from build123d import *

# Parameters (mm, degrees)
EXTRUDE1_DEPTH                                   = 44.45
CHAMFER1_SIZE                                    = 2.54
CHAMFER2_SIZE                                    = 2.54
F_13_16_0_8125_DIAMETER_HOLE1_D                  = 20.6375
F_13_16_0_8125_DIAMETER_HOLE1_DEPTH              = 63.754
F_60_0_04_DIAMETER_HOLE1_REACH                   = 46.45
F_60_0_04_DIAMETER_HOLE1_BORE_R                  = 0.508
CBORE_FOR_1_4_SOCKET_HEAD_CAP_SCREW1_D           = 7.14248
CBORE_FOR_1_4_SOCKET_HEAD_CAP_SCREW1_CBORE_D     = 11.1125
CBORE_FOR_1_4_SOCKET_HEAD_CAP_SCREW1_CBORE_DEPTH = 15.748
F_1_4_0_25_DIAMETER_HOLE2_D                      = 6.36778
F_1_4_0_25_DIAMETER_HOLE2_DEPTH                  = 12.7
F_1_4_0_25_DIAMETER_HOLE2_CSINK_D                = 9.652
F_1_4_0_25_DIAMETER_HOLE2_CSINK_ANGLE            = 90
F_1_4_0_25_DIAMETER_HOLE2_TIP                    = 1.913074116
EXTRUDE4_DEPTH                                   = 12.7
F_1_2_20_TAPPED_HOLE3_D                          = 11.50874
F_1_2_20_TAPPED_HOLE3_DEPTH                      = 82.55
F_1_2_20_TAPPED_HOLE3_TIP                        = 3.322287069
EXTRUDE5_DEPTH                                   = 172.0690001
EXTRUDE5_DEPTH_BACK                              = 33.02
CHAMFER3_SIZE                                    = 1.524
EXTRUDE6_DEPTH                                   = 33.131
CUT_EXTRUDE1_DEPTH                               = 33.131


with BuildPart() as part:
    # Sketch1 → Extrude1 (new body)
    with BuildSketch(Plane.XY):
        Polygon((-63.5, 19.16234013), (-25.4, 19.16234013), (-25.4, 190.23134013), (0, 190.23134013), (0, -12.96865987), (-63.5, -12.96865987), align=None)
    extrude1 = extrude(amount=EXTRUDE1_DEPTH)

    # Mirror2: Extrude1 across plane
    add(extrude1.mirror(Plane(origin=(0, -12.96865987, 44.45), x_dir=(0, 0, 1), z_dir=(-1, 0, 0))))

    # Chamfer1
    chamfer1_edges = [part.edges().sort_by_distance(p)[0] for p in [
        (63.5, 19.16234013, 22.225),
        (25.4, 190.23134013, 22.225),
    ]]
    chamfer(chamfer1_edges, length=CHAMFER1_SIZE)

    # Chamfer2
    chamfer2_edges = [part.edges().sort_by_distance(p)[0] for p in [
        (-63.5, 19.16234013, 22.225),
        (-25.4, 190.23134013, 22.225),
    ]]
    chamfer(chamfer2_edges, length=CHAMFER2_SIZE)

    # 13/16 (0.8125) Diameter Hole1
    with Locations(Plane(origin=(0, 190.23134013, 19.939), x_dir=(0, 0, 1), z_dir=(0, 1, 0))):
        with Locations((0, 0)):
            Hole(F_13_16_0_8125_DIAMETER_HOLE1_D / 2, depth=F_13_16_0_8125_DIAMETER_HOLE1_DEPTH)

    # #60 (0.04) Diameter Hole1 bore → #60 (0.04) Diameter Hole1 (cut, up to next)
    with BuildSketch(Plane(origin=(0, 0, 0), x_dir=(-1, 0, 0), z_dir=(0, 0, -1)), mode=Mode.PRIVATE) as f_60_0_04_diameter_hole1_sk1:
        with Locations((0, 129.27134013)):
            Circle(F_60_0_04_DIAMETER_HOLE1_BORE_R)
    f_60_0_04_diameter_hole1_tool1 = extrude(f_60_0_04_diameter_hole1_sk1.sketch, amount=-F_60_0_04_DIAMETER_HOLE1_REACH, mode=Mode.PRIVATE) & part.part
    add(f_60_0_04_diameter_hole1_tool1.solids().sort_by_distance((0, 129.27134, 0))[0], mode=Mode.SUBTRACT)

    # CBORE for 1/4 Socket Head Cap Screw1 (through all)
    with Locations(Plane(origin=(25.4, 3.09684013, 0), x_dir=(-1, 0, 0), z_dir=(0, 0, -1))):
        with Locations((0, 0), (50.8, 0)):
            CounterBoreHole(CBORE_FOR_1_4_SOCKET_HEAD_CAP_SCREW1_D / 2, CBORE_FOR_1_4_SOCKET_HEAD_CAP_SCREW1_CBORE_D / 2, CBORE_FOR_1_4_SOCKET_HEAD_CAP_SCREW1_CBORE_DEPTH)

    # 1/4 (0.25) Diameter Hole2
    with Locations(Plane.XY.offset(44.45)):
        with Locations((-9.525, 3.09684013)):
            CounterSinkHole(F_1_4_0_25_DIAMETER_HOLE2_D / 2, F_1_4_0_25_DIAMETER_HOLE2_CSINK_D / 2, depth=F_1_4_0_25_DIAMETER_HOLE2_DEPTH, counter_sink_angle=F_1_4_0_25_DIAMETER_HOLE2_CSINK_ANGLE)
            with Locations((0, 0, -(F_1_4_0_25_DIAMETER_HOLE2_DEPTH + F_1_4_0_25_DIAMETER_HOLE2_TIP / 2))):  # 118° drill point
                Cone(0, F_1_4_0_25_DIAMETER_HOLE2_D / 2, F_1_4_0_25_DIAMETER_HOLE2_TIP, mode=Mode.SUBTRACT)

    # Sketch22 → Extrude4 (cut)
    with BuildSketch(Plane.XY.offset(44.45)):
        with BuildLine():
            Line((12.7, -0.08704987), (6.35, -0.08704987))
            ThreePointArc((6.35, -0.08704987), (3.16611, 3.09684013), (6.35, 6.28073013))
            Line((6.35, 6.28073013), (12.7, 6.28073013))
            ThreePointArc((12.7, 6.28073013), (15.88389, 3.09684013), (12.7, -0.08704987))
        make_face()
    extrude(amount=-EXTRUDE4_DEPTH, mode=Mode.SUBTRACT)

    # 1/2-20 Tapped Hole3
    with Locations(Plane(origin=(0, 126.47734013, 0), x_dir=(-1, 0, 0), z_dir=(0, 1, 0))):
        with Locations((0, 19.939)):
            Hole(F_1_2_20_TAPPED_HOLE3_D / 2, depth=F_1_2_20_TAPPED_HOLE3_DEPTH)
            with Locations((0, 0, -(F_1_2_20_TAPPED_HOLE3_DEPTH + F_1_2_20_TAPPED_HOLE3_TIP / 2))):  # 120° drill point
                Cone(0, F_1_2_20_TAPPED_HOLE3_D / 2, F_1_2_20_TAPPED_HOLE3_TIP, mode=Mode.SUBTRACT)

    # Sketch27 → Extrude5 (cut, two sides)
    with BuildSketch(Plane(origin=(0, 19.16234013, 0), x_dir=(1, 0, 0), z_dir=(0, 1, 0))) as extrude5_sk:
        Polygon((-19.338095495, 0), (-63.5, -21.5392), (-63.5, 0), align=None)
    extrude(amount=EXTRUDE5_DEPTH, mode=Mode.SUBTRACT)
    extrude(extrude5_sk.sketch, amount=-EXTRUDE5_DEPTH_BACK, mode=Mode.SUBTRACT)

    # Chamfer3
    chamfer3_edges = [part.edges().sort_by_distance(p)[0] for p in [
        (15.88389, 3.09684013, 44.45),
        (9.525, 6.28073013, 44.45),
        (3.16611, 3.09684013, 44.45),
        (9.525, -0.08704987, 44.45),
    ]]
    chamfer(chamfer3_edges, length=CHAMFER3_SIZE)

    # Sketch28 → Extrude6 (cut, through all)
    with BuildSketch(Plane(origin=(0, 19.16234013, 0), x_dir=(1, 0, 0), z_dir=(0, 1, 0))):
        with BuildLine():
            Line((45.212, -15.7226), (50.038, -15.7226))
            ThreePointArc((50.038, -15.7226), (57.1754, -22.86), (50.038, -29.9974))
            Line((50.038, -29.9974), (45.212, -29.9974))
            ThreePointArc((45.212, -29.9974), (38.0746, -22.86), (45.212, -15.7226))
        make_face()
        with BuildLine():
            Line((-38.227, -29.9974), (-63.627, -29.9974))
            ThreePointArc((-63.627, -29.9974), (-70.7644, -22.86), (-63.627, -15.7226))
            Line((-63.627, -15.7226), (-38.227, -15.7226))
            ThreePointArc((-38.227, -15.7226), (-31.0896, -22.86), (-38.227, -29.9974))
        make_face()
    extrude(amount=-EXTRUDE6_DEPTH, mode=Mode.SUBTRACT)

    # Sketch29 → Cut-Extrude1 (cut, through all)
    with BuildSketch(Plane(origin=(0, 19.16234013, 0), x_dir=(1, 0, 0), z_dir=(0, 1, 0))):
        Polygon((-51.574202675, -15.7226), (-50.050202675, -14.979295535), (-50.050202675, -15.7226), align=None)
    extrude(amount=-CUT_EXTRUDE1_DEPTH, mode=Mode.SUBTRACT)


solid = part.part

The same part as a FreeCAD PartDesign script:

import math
import FreeCAD as App
import Part
import Sketcher
from FreeCAD import Vector
Q = App.Units.Quantity


def edges_at(feature, points):
    """Names of the edges that pass closest to the given points."""
    edges = feature.Shape.Edges
    near = lambda p: min(range(len(edges)), key=lambda i: edges[i].distToShape(Part.Vertex(*p))[0])
    return sorted({f"Edge{near(p) + 1}" for p in points})

doc = App.newDocument("Part")
params = doc.addObject("Spreadsheet::Sheet", "Params")
for row, (alias, value) in enumerate([
    ("sketch1_width", "1 in"),
    ("sketch1_height", "8 in"),
    ("sketch1_width2", "1.5 in"),
    ("sketch1_height2", "1.265 in"),
    ("pad1_length", "1.75 in"),
    ("chamfer_size", "0.1 in"),
    ("chamfer2_size", "0.1 in"),
    ("sketch2_diameter", "0.8125 in"),
    ("hole_diameter", "0.8125 in"),
    ("hole_depth", "2.51 in"),
    ("sketch3_diameter", "0.04 in"),
    ("hole2_diameter", "0.2812 in"),
    ("hole2_cbore_diameter", "0.4375 in"),
    ("hole2_cbore_depth", "0.62 in"),
    ("hole3_diameter", "0.2507 in"),
    ("hole3_depth", "0.5 in"),
    ("hole3_csink_diameter", "0.38 in"),
    ("sketch6_width", "0.25 in"),
    ("pocket2_length", "0.5 in"),
    ("hole4_diameter", "0.4531 in"),
    ("hole4_depth", "3.25 in"),
    ("sketch8_height", "0.848 in"),
    ("chamfer3_size", "0.06 in"),
    ("sketch9_width", "1 in"),
    ("sketch9_radius", "0.281 in"),
    ("sketch9_width2", "0.19 in"),
    ("sketch10_width", "0.06 in"),
], start=1):
    params.set(f"A{row}", alias)
    params.set(f"B{row}", "=" + value)
    params.setAlias(f"B{row}", alias)

body = doc.addObject("PartDesign::Body", "Body")

# Sketch on XY plane
sketch1 = body.newObject("Sketcher::SketchObject", "Sketch")
sketch1.AttachmentSupport = (doc.getObject("XY_Plane"), [""])
sketch1.MapMode = "FlatFace"
sketch1.addGeometry(Part.LineSegment(Vector(-25, 19, 0), Vector(-64, 19, 0)), False)
sketch1.addGeometry(Part.LineSegment(Vector(-64, 19, 0), Vector(-64, -13, 0)), False)
sketch1.addGeometry(Part.LineSegment(Vector(-64, -13, 0), Vector(0, -13, 0)), False)
sketch1.addGeometry(Part.LineSegment(Vector(0, -13, 0), Vector(0, 190, 0)), False)
sketch1.addGeometry(Part.LineSegment(Vector(0, 190, 0), Vector(-25, 190, 0)), False)
sketch1.addGeometry(Part.LineSegment(Vector(-25, 190, 0), Vector(-25, 19, 0)), False)
sketch1.addConstraint(Sketcher.Constraint("Coincident", 0, 2, 1, 1))
sketch1.addConstraint(Sketcher.Constraint("Coincident", 1, 2, 2, 1))
sketch1.addConstraint(Sketcher.Constraint("Coincident", 2, 2, 3, 1))
sketch1.addConstraint(Sketcher.Constraint("Coincident", 3, 2, 4, 1))
sketch1.addConstraint(Sketcher.Constraint("Coincident", 4, 2, 5, 1))
sketch1.addConstraint(Sketcher.Constraint("Coincident", 5, 2, 0, 1))
sketch1.addConstraint(Sketcher.Constraint("Horizontal", 0))
sketch1.addConstraint(Sketcher.Constraint("Vertical", 1))
sketch1.addConstraint(Sketcher.Constraint("Horizontal", 2))
sketch1.addConstraint(Sketcher.Constraint("Vertical", 3))
sketch1.addConstraint(Sketcher.Constraint("Horizontal", 4))
sketch1.addConstraint(Sketcher.Constraint("Vertical", 5))
sketch1.addConstraint(Sketcher.Constraint("PointOnObject", 2, 2, -2))
sketch1.addConstraint(Sketcher.Constraint("DistanceX", 4, 2, 4, 1, Q("1 in")))
sketch1.addConstraint(Sketcher.Constraint("DistanceY", 3, 1, 3, 2, Q("8 in")))
sketch1.addConstraint(Sketcher.Constraint("DistanceX", 0, 2, 0, 1, Q("1.5 in")))
sketch1.addConstraint(Sketcher.Constraint("DistanceY", 1, 2, 1, 1, Q("1.265 in")))
sketch1.addConstraint(Sketcher.Constraint("DistanceY", -1, 1, 0, 2, Q("19.16234 mm")))
sketch1.setExpression("Constraints[13]", "Params.sketch1_width")
sketch1.setExpression("Constraints[14]", "Params.sketch1_height")
sketch1.setExpression("Constraints[15]", "Params.sketch1_width2")
sketch1.setExpression("Constraints[16]", "Params.sketch1_height2")
pad1 = body.newObject("PartDesign::Pad", "Pad")
pad1.Profile = sketch1
pad1.setExpression("Length", "Params.pad1_length")
doc.recompute()

mirrored = body.newObject("PartDesign::Mirrored", "Mirrored")
mirrored.Originals = [pad1]
mirrored.MirrorPlane = (doc.getObject("YZ_Plane"), [""])
body.Tip = mirrored
doc.recompute()

chamfer = body.newObject("PartDesign::Chamfer", "Chamfer")
chamfer.Base = (mirrored, edges_at(mirrored, [(63.5, 19.162, 22.225), (25.4, 190.231, 22.225)]))
chamfer.setExpression("Size", "Params.chamfer_size")
doc.recompute()

chamfer2 = body.newObject("PartDesign::Chamfer", "Chamfer001")
chamfer2.Base = (chamfer, edges_at(chamfer, [(-63.5, 19.162, 22.225), (-25.4, 190.231, 22.225)]))
chamfer2.setExpression("Size", "Params.chamfer2_size")

# Sketch on XZ plane
sketch2 = body.newObject("Sketcher::SketchObject", "Sketch001")
sketch2.AttachmentSupport = (doc.getObject("XZ_Plane"), [""])
sketch2.MapMode = "FlatFace"
sketch2.AttachmentOffset = App.Placement(Vector(0, 0, -190.23134), App.Rotation())
sketch2.addGeometry(Part.Circle(Vector(0, 20, 0), Vector(0, 0, 1), 10), False)
sketch2.addConstraint(Sketcher.Constraint("PointOnObject", 0, 3, -2))
sketch2.addConstraint(Sketcher.Constraint("Diameter", 0, Q("0.8125 in")))
sketch2.addConstraint(Sketcher.Constraint("DistanceY", -1, 1, 0, 3, Q("0.785 in")))
sketch2.setExpression("Constraints[1]", "Params.sketch2_diameter")
doc.recompute()
hole = body.newObject("PartDesign::Hole", "Hole")
hole.Profile = sketch2
hole.ThreadType = "None"
hole.setExpression("Diameter", "Params.hole_diameter")
hole.DepthType = "Dimension"
hole.setExpression("Depth", "Params.hole_depth")
hole.DrillPoint = "Flat"
hole.Reversed = True

# Sketch on XY plane
sketch3 = body.newObject("Sketcher::SketchObject", "Sketch002")
sketch3.AttachmentSupport = (doc.getObject("XY_Plane"), [""])
sketch3.MapMode = "FlatFace"
sketch3.addGeometry(Part.Circle(Vector(0, 129.3, 0), Vector(0, 0, 1), 0.5), False)
sketch3.addConstraint(Sketcher.Constraint("PointOnObject", 0, 3, -2))
sketch3.addConstraint(Sketcher.Constraint("Diameter", 0, Q("0.04 in")))
sketch3.addConstraint(Sketcher.Constraint("DistanceY", -1, 1, 0, 3, Q("129.27134 mm")))
sketch3.setExpression("Constraints[1]", "Params.sketch3_diameter")
pocket1 = body.newObject("PartDesign::Pocket", "Pocket")
pocket1.Profile = sketch3
pocket1.Type = "UpToFirst"
pocket1.Reversed = True

# Sketch on XY plane
sketch4 = body.newObject("Sketcher::SketchObject", "Sketch003")
sketch4.AttachmentSupport = (doc.getObject("XY_Plane"), [""])
sketch4.MapMode = "FlatFace"
sketch4.addGeometry(Part.Circle(Vector(25.4, 3.1, 0), Vector(0, 0, 1), 3.6), False)
sketch4.addGeometry(Part.Circle(Vector(-25.4, 3.1, 0), Vector(0, 0, 1), 3.6), False)
sketch4.addConstraint(Sketcher.Constraint("Equal", 0, 1))
sketch4.addConstraint(Sketcher.Constraint("Symmetric", 0, 3, 1, 3, -2))
sketch4.addConstraint(Sketcher.Constraint("DistanceX", -1, 1, 0, 3, Q("1 in")))
sketch4.addConstraint(Sketcher.Constraint("Diameter", 0, Q("0.2812 in")))
sketch4.addConstraint(Sketcher.Constraint("DistanceY", -1, 1, 0, 3, Q("3.09684 mm")))
doc.recompute()
hole2 = body.newObject("PartDesign::Hole", "Hole001")
hole2.Profile = sketch4
hole2.ThreadType = "None"
hole2.setExpression("Diameter", "Params.hole2_diameter")
hole2.DepthType = "ThroughAll"
hole2.HoleCutType = "Counterbore"
hole2.setExpression("HoleCutDiameter", "Params.hole2_cbore_diameter")
hole2.setExpression("HoleCutDepth", "Params.hole2_cbore_depth")
hole2.Reversed = True

# Sketch on XY plane
sketch5 = body.newObject("Sketcher::SketchObject", "Sketch004")
sketch5.AttachmentSupport = (doc.getObject("XY_Plane"), [""])
sketch5.MapMode = "FlatFace"
sketch5.AttachmentOffset = App.Placement(Vector(0, 0, 1.75 * 25.4), App.Rotation())
sketch5.addGeometry(Part.Circle(Vector(-9.5, 3.1, 0), Vector(0, 0, 1), 3.2), False)
sketch5.addConstraint(Sketcher.Constraint("Diameter", 0, Q("0.2507 in")))
sketch5.addConstraint(Sketcher.Constraint("DistanceX", 0, 3, -1, 1, Q("0.375 in")))
sketch5.addConstraint(Sketcher.Constraint("DistanceY", -1, 1, 0, 3, Q("3.09684 mm")))
doc.recompute()
hole3 = body.newObject("PartDesign::Hole", "Hole002")
hole3.Profile = sketch5
hole3.ThreadType = "None"
hole3.setExpression("Diameter", "Params.hole3_diameter")
hole3.DepthType = "Dimension"
hole3.setExpression("Depth", "Params.hole3_depth")
hole3.DrillPoint = "Angled"
hole3.DrillPointAngle = 118
hole3.HoleCutType = "Countersink"
hole3.setExpression("HoleCutDiameter", "Params.hole3_csink_diameter")
hole3.HoleCutCountersinkAngle = 90

# Sketch on XY plane
sketch6 = body.newObject("Sketcher::SketchObject", "Sketch005")
sketch6.AttachmentSupport = (doc.getObject("XY_Plane"), [""])
sketch6.MapMode = "FlatFace"
sketch6.AttachmentOffset = App.Placement(Vector(0, 0, 1.75 * 25.4), App.Rotation())
sketch6.addGeometry(Part.LineSegment(Vector(6.3, -0.1, 0), Vector(12.7, -0.1, 0)), False)
sketch6.addGeometry(Part.ArcOfCircle(Part.Circle(Vector(12.7, 3.1, 0), Vector(0, 0, 1), 3.2), math.radians(-90), math.radians(90)), False)
sketch6.addGeometry(Part.LineSegment(Vector(12.7, 6.3, 0), Vector(6.3, 6.3, 0)), False)
sketch6.addGeometry(Part.ArcOfCircle(Part.Circle(Vector(6.3, 3.1, 0), Vector(0, 0, 1), 3.2), math.radians(90), math.radians(270)), False)
sketch6.addConstraint(Sketcher.Constraint("Tangent", 0, 2, 1, 1))
sketch6.addConstraint(Sketcher.Constraint("Tangent", 1, 2, 2, 1))
sketch6.addConstraint(Sketcher.Constraint("Tangent", 2, 2, 3, 1))
sketch6.addConstraint(Sketcher.Constraint("Tangent", 3, 2, 0, 1))
sketch6.addConstraint(Sketcher.Constraint("Horizontal", 0))
sketch6.addConstraint(Sketcher.Constraint("Horizontal", 2))
sketch6.addConstraint(Sketcher.Constraint("DistanceX", 0, 1, 0, 2, Q("0.25 in")))
sketch6.addConstraint(Sketcher.Constraint("DistanceX", -1, 1, 1, 3, Q("0.5 in")))
sketch6.addConstraint(Sketcher.Constraint("Radius", 1, Q("3.18389 mm")))
sketch6.addConstraint(Sketcher.Constraint("DistanceY", -1, 1, 1, 3, Q("3.09684 mm")))
sketch6.setExpression("Constraints[6]", "Params.sketch6_width")
pocket2 = body.newObject("PartDesign::Pocket", "Pocket001")
pocket2.Profile = sketch6
pocket2.setExpression("Length", "Params.pocket2_length")

# Sketch on XZ plane
sketch7 = body.newObject("Sketcher::SketchObject", "Sketch006")
sketch7.AttachmentSupport = (doc.getObject("XZ_Plane"), [""])
sketch7.MapMode = "FlatFace"
sketch7.AttachmentOffset = App.Placement(Vector(0, 0, -126.47734), App.Rotation())
sketch7.addGeometry(Part.Circle(Vector(0, 20, 0), Vector(0, 0, 1), 6), False)
sketch7.addConstraint(Sketcher.Constraint("PointOnObject", 0, 3, -2))
sketch7.addConstraint(Sketcher.Constraint("Diameter", 0, Q("0.4531 in")))
sketch7.addConstraint(Sketcher.Constraint("DistanceY", -1, 1, 0, 3, Q("0.785 in")))
doc.recompute()
hole4 = body.newObject("PartDesign::Hole", "Hole003")
hole4.Profile = sketch7
hole4.ThreadType = "None"
hole4.setExpression("Diameter", "Params.hole4_diameter")
hole4.DepthType = "Dimension"
hole4.setExpression("Depth", "Params.hole4_depth")
hole4.DrillPoint = "Angled"
hole4.DrillPointAngle = 120
hole4.Reversed = True

# Sketch on XZ plane
sketch8 = body.newObject("Sketcher::SketchObject", "Sketch007")
sketch8.AttachmentSupport = (doc.getObject("XZ_Plane"), [""])
sketch8.MapMode = "FlatFace"
sketch8.AttachmentOffset = App.Placement(Vector(0, 0, -19.16234), App.Rotation())
sketch8.addGeometry(Part.LineSegment(Vector(-64, 22, 0), Vector(-19, 0, 0)), False)
sketch8.addGeometry(Part.LineSegment(Vector(-19, 0, 0), Vector(-64, 0, 0)), False)
sketch8.addGeometry(Part.LineSegment(Vector(-64, 0, 0), Vector(-64, 22, 0)), False)
sketch8.addConstraint(Sketcher.Constraint("Coincident", 0, 2, 1, 1))
sketch8.addConstraint(Sketcher.Constraint("Coincident", 1, 2, 2, 1))
sketch8.addConstraint(Sketcher.Constraint("Coincident", 2, 2, 0, 1))
sketch8.addConstraint(Sketcher.Constraint("Horizontal", 1))
sketch8.addConstraint(Sketcher.Constraint("Vertical", 2))
sketch8.addConstraint(Sketcher.Constraint("PointOnObject", 0, 2, -1))
sketch8.addConstraint(Sketcher.Constraint("Angle", 0, Q("-26 deg")))
sketch8.addConstraint(Sketcher.Constraint("DistanceX", 1, 2, -1, 1, Q("2.5 in")))
sketch8.addConstraint(Sketcher.Constraint("DistanceY", 2, 1, 2, 2, Q("0.848 in")))
sketch8.setExpression("Constraints[8]", "Params.sketch8_height")
pocket3 = body.newObject("PartDesign::Pocket", "Pocket002")
pocket3.Profile = sketch8
pocket3.Type = "ThroughAll"
pocket3.Midplane = True
doc.recompute()

chamfer3 = body.newObject("PartDesign::Chamfer", "Chamfer002")
chamfer3.Base = (pocket3, edges_at(pocket3, [
    (15.884, 3.097, 44.45),
    (9.525, 6.281, 44.45),
    (3.166, 3.097, 44.45),
    (9.525, -0.087, 44.45),
]))
chamfer3.setExpression("Size", "Params.chamfer3_size")

# Sketch on XZ plane
sketch9 = body.newObject("Sketcher::SketchObject", "Sketch008")
sketch9.AttachmentSupport = (doc.getObject("XZ_Plane"), [""])
sketch9.MapMode = "FlatFace"
sketch9.AttachmentOffset = App.Placement(Vector(0, 0, -19.16234), App.Rotation())
sketch9.addGeometry(Part.LineSegment(Vector(50, 15.7, 0), Vector(45.2, 15.7, 0)), False)
sketch9.addGeometry(Part.ArcOfCircle(Part.Circle(Vector(45.2, 22.9, 0), Vector(0, 0, 1), 7.1), math.radians(90), math.radians(270)), False)
sketch9.addGeometry(Part.LineSegment(Vector(45.2, 30, 0), Vector(50, 30, 0)), False)
sketch9.addGeometry(Part.ArcOfCircle(Part.Circle(Vector(50, 22.9, 0), Vector(0, 0, 1), 7.1), math.radians(-90), math.radians(90)), False)
sketch9.addGeometry(Part.LineSegment(Vector(-63.6, 30, 0), Vector(-38.2, 30, 0)), False)
sketch9.addGeometry(Part.ArcOfCircle(Part.Circle(Vector(-38.2, 22.9, 0), Vector(0, 0, 1), 7.1), math.radians(-90), math.radians(90)), False)
sketch9.addGeometry(Part.LineSegment(Vector(-38.2, 15.7, 0), Vector(-63.6, 15.7, 0)), False)
sketch9.addGeometry(Part.ArcOfCircle(Part.Circle(Vector(-63.6, 22.9, 0), Vector(0, 0, 1), 7.1), math.radians(90), math.radians(270)), False)
sketch9.addConstraint(Sketcher.Constraint("Tangent", 0, 2, 1, 2))
sketch9.addConstraint(Sketcher.Constraint("Tangent", 1, 1, 2, 1))
sketch9.addConstraint(Sketcher.Constraint("Tangent", 2, 2, 3, 2))
sketch9.addConstraint(Sketcher.Constraint("Tangent", 3, 1, 0, 1))
sketch9.addConstraint(Sketcher.Constraint("Tangent", 4, 2, 5, 2))
sketch9.addConstraint(Sketcher.Constraint("Tangent", 5, 1, 6, 1))
sketch9.addConstraint(Sketcher.Constraint("Tangent", 6, 2, 7, 2))
sketch9.addConstraint(Sketcher.Constraint("Tangent", 7, 1, 4, 1))
sketch9.addConstraint(Sketcher.Constraint("Horizontal", 0))
sketch9.addConstraint(Sketcher.Constraint("Horizontal", 2))
sketch9.addConstraint(Sketcher.Constraint("Horizontal", 4))
sketch9.addConstraint(Sketcher.Constraint("Horizontal", 6))
sketch9.addConstraint(Sketcher.Constraint("Equal", 3, 5))
sketch9.addConstraint(Sketcher.Constraint("Horizontal", 3, 3, 5, 3))
sketch9.addConstraint(Sketcher.Constraint("DistanceX", 4, 1, 4, 2, Q("1 in")))
sketch9.addConstraint(Sketcher.Constraint("Radius", 1, Q("0.281 in")))
sketch9.addConstraint(Sketcher.Constraint("DistanceX", 0, 2, 0, 1, Q("0.19 in")))
sketch9.addConstraint(Sketcher.Constraint("DistanceY", -1, 1, 1, 3, Q("0.9 in")))
sketch9.addConstraint(Sketcher.Constraint("DistanceX", -1, 1, 1, 3, Q("1.78 in")))
sketch9.addConstraint(Sketcher.Constraint("DistanceX", 5, 3, -1, 1, Q("1.505 in")))
sketch9.setExpression("Constraints[14]", "Params.sketch9_width")
sketch9.setExpression("Constraints[15]", "Params.sketch9_radius")
sketch9.setExpression("Constraints[16]", "Params.sketch9_width2")
pocket4 = body.newObject("PartDesign::Pocket", "Pocket003")
pocket4.Profile = sketch9
pocket4.Type = "ThroughAll"
pocket4.Reversed = True

# Sketch on XZ plane
sketch10 = body.newObject("Sketcher::SketchObject", "Sketch009")
sketch10.AttachmentSupport = (doc.getObject("XZ_Plane"), [""])
sketch10.MapMode = "FlatFace"
sketch10.AttachmentOffset = App.Placement(Vector(0, 0, -19.16234), App.Rotation())
sketch10.addGeometry(Part.LineSegment(Vector(-50.1, 15, 0), Vector(-51.6, 15.7, 0)), False)
sketch10.addGeometry(Part.LineSegment(Vector(-51.6, 15.7, 0), Vector(-50.1, 15.7, 0)), False)
sketch10.addGeometry(Part.LineSegment(Vector(-50.1, 15.7, 0), Vector(-50.1, 15, 0)), False)
sketch10.addConstraint(Sketcher.Constraint("Coincident", 0, 2, 1, 1))
sketch10.addConstraint(Sketcher.Constraint("Coincident", 1, 2, 2, 1))
sketch10.addConstraint(Sketcher.Constraint("Coincident", 2, 2, 0, 1))
sketch10.addConstraint(Sketcher.Constraint("Horizontal", 1))
sketch10.addConstraint(Sketcher.Constraint("Vertical", 2))
sketch10.addConstraint(Sketcher.Constraint("Angle", 0, Q("154 deg")))
sketch10.addConstraint(Sketcher.Constraint("DistanceX", 1, 1, 1, 2, Q("0.06 in")))
sketch10.addConstraint(Sketcher.Constraint("DistanceY", -1, 1, 0, 2, Q("0.619 in")))
sketch10.addConstraint(Sketcher.Constraint("DistanceX", 0, 2, -1, 1, Q("51.574203 mm")))
sketch10.setExpression("Constraints[6]", "Params.sketch10_width")
pocket5 = body.newObject("PartDesign::Pocket", "Pocket004")
pocket5.Profile = sketch10
pocket5.Type = "ThroughAll"
pocket5.Reversed = True

doc.recompute()
